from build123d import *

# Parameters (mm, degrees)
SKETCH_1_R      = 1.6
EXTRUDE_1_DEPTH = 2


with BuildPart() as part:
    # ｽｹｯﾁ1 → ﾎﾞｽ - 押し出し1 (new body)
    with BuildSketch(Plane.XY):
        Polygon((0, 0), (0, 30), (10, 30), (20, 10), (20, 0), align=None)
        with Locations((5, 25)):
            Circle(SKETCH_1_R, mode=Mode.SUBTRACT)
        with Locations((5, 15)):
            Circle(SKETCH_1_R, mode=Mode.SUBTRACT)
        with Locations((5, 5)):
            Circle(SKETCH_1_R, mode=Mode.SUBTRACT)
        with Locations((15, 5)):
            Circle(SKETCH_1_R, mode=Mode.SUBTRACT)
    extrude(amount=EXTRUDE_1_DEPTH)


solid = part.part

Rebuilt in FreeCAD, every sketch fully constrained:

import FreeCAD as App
import Part
import Sketcher
Q = App.Units.Quantity


def add_polygon(sketch, points):
    """Adds a closed chain of lines whose ends are joined by coincident constraints."""
    first, n = sketch.GeometryCount, len(points)
    for a, b in zip(points, points[1:] + points[:1]):
        sketch.addGeometry(Part.LineSegment(App.Vector(*a, 0), App.Vector(*b, 0)), False)
    for i in range(n):
        sketch.addConstraint(Sketcher.Constraint("Coincident", first + i, 2, first + (i + 1) % n, 1))

doc = App.newDocument("Part")
params = doc.addObject("Spreadsheet::Sheet", "Params")
for row, (alias, value) in enumerate([
    ("sketch1_diameter", "3.2 mm"),
    ("sketch1_width", "20 mm"),
    ("sketch1_width2", "10 mm"),
    ("sketch1_height", "30 mm"),
    ("pad1_length", "2 mm"),
], start=1):
    params.set(f"A{row}", alias)
    params.set(f"B{row}", "=" + value)
    params.setAlias(f"B{row}", alias)

body = doc.addObject("PartDesign::Body", "Body")

sketch1 = doc.addObject("Sketcher::SketchObject", "Sketch")
body.addObject(sketch1)
sketch1.AttachmentSupport = (doc.XY_Plane, [""])
sketch1.MapMode = "FlatFace"
add_polygon(sketch1, [(0, 30), (0, 0), (20, 0), (20, 10), (10, 30)])
sketch1.addGeometry(Part.Circle(App.Vector(15, 5, 0), App.Vector(0, 0, 1), 1.6), False)
sketch1.addGeometry(Part.Circle(App.Vector(5, 5, 0), App.Vector(0, 0, 1), 1.6), False)
sketch1.addGeometry(Part.Circle(App.Vector(5, 15, 0), App.Vector(0, 0, 1), 1.6), False)
sketch1.addGeometry(Part.Circle(App.Vector(5, 25, 0), App.Vector(0, 0, 1), 1.6), False)
sketch1.addConstraint(Sketcher.Constraint("Vertical", 0))
sketch1.addConstraint(Sketcher.Constraint("Horizontal", 1))
sketch1.addConstraint(Sketcher.Constraint("Vertical", 2))
sketch1.addConstraint(Sketcher.Constraint("Horizontal", 4))
sketch1.addConstraint(Sketcher.Constraint("Coincident", 0, 2, -1, 1))
sketch1.addConstraint(Sketcher.Constraint("Equal", 5, 6))
sketch1.addConstraint(Sketcher.Constraint("Equal", 6, 7))
sketch1.addConstraint(Sketcher.Constraint("Equal", 7, 8))
sketch1.addConstraint(Sketcher.Constraint("Horizontal", 5, 3, 6, 3))
sketch1.addConstraint(Sketcher.Constraint("Vertical", 6, 3, 7, 3))
sketch1.addConstraint(Sketcher.Constraint("Vertical", 7, 3, 8, 3))
sketch1.addConstraint(Sketcher.Constraint("Equal", 4, 2))
sketch1.addConstraint(Sketcher.Constraint("Diameter", 5, Q("3.2 mm")))
sketch1.addConstraint(Sketcher.Constraint("DistanceX", 1, 1, 1, 2, Q("20 mm")))
sketch1.addConstraint(Sketcher.Constraint("DistanceX", 4, 2, 4, 1, Q("10 mm")))
sketch1.addConstraint(Sketcher.Constraint("DistanceY", 0, 2, 0, 1, Q("30 mm")))
sketch1.addConstraint(Sketcher.Constraint("DistanceX", -1, 1, 5, 3, Q("15 mm")))
sketch1.addConstraint(Sketcher.Constraint("DistanceY", -1, 1, 5, 3, Q("5 mm")))
sketch1.addConstraint(Sketcher.Constraint("DistanceX", -1, 1, 6, 3, Q("5 mm")))
sketch1.addConstraint(Sketcher.Constraint("DistanceY", -1, 1, 7, 3, Q("15 mm")))
sketch1.addConstraint(Sketcher.Constraint("DistanceY", -1, 1, 8, 3, Q("25 mm")))
sketch1.setExpression("Constraints[17]", "Params.sketch1_diameter")
sketch1.setExpression("Constraints[18]", "Params.sketch1_width")
sketch1.setExpression("Constraints[19]", "Params.sketch1_width2")
sketch1.setExpression("Constraints[20]", "Params.sketch1_height")
pad1 = doc.addObject("PartDesign::Pad", "Pad")
body.addObject(pad1)
pad1.Profile = sketch1
pad1.setExpression("Length", "Params.pad1_length")

doc.recompute()
